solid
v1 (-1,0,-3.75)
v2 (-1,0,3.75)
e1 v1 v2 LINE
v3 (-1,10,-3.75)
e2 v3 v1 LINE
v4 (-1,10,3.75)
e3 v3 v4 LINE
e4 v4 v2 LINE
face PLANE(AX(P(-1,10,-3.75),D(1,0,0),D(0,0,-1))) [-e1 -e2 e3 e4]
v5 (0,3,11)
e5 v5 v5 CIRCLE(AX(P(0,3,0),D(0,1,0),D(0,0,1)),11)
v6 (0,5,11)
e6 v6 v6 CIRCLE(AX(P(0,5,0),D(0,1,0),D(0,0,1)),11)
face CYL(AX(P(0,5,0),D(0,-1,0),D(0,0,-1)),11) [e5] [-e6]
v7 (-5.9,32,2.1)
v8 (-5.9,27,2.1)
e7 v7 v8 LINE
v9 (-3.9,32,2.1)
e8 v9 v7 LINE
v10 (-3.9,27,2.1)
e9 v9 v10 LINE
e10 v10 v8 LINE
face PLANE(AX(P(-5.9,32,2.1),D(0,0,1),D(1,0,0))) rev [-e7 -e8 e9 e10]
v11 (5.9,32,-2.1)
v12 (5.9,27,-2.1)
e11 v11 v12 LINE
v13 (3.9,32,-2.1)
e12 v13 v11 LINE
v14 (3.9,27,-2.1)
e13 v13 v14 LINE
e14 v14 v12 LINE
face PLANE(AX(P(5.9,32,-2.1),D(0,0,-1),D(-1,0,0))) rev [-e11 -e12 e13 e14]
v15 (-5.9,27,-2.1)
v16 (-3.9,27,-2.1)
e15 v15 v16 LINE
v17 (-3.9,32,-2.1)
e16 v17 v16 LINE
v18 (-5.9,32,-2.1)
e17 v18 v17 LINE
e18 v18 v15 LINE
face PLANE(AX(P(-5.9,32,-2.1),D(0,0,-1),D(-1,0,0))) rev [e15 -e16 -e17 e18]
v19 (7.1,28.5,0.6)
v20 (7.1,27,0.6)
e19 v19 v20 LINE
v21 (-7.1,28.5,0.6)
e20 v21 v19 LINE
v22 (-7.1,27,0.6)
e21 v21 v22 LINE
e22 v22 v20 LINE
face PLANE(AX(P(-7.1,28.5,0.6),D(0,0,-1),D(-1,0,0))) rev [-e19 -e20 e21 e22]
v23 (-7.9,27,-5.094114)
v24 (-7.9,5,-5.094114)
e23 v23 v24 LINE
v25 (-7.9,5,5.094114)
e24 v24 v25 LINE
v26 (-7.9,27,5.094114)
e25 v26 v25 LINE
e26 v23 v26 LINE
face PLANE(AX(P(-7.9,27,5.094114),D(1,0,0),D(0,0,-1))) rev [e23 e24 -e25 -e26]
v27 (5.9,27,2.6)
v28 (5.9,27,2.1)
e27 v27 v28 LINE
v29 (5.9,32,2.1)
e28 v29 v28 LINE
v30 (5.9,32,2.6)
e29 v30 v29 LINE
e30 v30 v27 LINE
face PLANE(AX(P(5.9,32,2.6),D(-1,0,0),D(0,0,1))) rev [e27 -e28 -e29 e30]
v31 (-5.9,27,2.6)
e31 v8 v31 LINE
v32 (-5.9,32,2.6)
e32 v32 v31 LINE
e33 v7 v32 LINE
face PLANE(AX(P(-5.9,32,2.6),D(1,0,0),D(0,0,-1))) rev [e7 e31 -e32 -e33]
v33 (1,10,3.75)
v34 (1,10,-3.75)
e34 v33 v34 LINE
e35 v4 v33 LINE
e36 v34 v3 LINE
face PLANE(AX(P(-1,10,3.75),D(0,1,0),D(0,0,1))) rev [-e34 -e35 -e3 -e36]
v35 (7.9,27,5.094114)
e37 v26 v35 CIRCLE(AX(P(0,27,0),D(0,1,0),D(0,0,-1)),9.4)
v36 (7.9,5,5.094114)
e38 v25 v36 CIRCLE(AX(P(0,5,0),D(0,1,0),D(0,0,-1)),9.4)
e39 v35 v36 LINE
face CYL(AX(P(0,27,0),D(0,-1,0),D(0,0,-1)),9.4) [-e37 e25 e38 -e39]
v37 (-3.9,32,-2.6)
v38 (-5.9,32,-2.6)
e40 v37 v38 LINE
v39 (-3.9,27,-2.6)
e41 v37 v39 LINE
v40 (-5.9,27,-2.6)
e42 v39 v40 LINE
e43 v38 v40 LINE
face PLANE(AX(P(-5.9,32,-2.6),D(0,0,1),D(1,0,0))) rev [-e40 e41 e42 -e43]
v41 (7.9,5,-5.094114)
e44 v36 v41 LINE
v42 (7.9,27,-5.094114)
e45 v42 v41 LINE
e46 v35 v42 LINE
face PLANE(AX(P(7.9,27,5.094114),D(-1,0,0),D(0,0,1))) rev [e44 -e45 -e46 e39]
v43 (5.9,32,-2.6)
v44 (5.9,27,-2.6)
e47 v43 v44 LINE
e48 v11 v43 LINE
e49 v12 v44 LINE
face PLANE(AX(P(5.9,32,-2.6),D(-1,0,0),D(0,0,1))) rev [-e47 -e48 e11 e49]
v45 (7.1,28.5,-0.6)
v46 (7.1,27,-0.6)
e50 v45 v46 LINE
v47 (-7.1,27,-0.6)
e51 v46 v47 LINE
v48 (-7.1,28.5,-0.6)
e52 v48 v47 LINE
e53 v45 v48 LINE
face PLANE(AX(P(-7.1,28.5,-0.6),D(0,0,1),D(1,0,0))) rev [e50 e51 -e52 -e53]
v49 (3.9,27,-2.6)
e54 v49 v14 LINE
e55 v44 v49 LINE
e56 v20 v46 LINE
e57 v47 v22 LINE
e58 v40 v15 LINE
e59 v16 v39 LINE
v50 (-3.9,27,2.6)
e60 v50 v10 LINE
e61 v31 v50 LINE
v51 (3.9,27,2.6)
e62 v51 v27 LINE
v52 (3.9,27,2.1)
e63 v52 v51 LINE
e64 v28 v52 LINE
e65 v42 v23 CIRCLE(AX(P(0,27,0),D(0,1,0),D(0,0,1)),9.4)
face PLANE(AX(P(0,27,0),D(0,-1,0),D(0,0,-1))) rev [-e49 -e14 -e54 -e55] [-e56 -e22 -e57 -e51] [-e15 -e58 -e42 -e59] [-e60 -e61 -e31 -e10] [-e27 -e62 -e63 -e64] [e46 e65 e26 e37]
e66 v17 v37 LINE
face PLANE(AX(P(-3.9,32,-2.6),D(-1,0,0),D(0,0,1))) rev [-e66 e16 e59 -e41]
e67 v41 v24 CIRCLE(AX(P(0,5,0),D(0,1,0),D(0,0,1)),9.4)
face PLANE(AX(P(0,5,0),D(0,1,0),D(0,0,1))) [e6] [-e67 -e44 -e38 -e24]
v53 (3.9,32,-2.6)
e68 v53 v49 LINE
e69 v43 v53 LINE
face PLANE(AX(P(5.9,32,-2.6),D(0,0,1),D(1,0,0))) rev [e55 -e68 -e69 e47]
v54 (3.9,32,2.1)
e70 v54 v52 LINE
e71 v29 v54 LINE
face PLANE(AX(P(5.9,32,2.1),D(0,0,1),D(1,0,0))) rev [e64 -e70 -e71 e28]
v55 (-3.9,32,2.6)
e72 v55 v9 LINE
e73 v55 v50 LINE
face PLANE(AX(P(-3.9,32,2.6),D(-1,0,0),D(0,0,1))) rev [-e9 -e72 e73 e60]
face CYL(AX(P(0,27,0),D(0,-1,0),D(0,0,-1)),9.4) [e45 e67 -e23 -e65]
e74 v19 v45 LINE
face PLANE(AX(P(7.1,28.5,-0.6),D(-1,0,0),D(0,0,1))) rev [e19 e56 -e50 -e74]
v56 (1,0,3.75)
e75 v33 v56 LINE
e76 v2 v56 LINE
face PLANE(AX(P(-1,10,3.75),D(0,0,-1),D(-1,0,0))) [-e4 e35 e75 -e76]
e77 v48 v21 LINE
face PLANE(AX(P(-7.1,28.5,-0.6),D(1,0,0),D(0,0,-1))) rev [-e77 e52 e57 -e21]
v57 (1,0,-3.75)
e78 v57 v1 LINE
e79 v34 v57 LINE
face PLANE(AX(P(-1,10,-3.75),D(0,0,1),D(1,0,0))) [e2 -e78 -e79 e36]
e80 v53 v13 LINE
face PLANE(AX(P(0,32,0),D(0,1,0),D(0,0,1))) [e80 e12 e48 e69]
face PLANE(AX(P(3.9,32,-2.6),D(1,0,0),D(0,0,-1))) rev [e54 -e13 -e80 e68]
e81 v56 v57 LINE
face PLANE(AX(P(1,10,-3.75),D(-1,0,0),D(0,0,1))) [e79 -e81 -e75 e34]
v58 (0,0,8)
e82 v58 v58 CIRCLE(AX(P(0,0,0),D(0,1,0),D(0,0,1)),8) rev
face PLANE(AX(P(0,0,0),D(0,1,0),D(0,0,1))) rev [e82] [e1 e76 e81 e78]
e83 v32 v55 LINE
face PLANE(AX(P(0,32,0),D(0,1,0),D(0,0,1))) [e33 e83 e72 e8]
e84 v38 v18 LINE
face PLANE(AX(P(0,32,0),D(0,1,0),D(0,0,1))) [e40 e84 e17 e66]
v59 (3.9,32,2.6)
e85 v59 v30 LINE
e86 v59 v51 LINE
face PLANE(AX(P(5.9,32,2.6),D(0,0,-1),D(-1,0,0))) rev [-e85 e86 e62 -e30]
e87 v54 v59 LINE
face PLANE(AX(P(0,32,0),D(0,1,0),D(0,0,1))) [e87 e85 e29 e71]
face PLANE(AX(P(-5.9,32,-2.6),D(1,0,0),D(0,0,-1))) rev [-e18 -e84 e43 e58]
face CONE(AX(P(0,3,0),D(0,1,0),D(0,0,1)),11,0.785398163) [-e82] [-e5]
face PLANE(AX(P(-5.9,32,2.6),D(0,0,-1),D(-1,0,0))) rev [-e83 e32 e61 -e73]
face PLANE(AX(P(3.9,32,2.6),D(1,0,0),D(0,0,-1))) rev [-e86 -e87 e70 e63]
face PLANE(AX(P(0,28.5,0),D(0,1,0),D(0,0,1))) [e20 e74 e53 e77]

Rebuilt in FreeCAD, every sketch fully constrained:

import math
import FreeCAD as App
import Part
import Sketcher
from FreeCAD import Vector


def edges_at(feature, points):
    """Names of the edges that pass closest to the given points."""
    edges = feature.Shape.Edges
    near = lambda p: min(range(len(edges)), key=lambda i: edges[i].distToShape(Part.Vertex(*p))[0])
    return sorted({f"Edge{near(p) + 1}" for p in points})

doc = App.newDocument("Part")
body = doc.addObject("PartDesign::Body", "Body")

# Sketch on XZ plane
sketch1 = doc.addObject("Sketcher::SketchObject", "Sketch")
body.addObject(sketch1)
sketch1.AttachmentSupport = (doc.XZ_Plane, [""])
sketch1.MapMode = "FlatFace"
sketch1.addGeometry(Part.Circle(Vector(0, 0, 0), Vector(0, 0, 1), 11), False)
sketch1.addConstraint([
    Sketcher.Constraint("Coincident", 0, 3, -1, 1),
    Sketcher.Constraint("Diameter", 0, 22.0),
])
pad1 = doc.addObject("PartDesign::Pad", "Pad")
body.addObject(pad1)
pad1.Profile = sketch1
pad1.Length = 5
pad1.Reversed = True
doc.recompute()

chamfer = doc.addObject("PartDesign::Chamfer", "Chamfer")
body.addObject(chamfer)
chamfer.Base = (pad1, edges_at(pad1, [(0, 0, -11)]))
chamfer.Size = 3

# Sketch on XZ plane
sketch2 = doc.addObject("Sketcher::SketchObject", "Sketch001")
body.addObject(sketch2)
sketch2.AttachmentSupport = (doc.XZ_Plane, [""])
sketch2.MapMode = "FlatFace"
sketch2.AttachmentOffset = App.Placement(Vector(0, 0, -5), App.Rotation())
sketch2.addGeometry([
    Part.LineSegment(Vector(8, 5, 0), Vector(8, -5, 0)),
    Part.ArcOfCircle(Part.Circle(Vector(0, 0, 0), Vector(0, 0, 1), 9), math.radians(-147), math.radians(-33)),
    Part.LineSegment(Vector(-8, -5, 0), Vector(-8, 5, 0)),
    Part.ArcOfCircle(Part.Circle(Vector(0, 0, 0), Vector(0, 0, 1), 9), math.radians(33), math.radians(147)),
], False)
sketch2.addConstraint([
    Sketcher.Constraint("Coincident", 0, 2, 1, 2),
    Sketcher.Constraint("Coincident", 1, 1, 2, 1),
    Sketcher.Constraint("Coincident", 2, 2, 3, 2),
    Sketcher.Constraint("Coincident", 3, 1, 0, 1),
    Sketcher.Constraint("Vertical", 0),
    Sketcher.Constraint("Vertical", 2),
    Sketcher.Constraint("Coincident", 1, 3, -1, 1),
    Sketcher.Constraint("Coincident", 3, 3, -1, 1),
    Sketcher.Constraint("Equal", 1, 3),
    Sketcher.Constraint("Horizontal", 0, 2, 1, 1),
    Sketcher.Constraint("Radius", 1, 9.4),
    Sketcher.Constraint("DistanceX", -1, 1, 0, 2, 7.9),
])
pad2 = doc.addObject("PartDesign::Pad", "Pad001")
body.addObject(pad2)
pad2.Profile = sketch2
pad2.Length = 22
pad2.Reversed = True

# Sketch on XZ plane
sketch3 = doc.addObject("Sketcher::SketchObject", "Sketch002")
body.addObject(sketch3)
sketch3.AttachmentSupport = (doc.XZ_Plane, [""])
sketch3.MapMode = "FlatFace"
sketch3.addGeometry([
    Part.LineSegment(Vector(1, 3.8, 0), Vector(1, -3.8, 0)),
    Part.LineSegment(Vector(1, -3.8, 0), Vector(-1, -3.8, 0)),
    Part.LineSegment(Vector(-1, -3.8, 0), Vector(-1, 3.8, 0)),
    Part.LineSegment(Vector(-1, 3.8, 0), Vector(1, 3.8, 0)),
], False)
sketch3.addConstraint([
    Sketcher.Constraint("Coincident", 0, 2, 1, 1),
    Sketcher.Constraint("Coincident", 1, 2, 2, 1),
    Sketcher.Constraint("Coincident", 2, 2, 3, 1),
    Sketcher.Constraint("Coincident", 3, 2, 0, 1),
    Sketcher.Constraint("Vertical", 0),
    Sketcher.Constraint("Horizontal", 1),
    Sketcher.Constraint("Vertical", 2),
    Sketcher.Constraint("Horizontal", 3),
    Sketcher.Constraint("Symmetric", 0, 2, 2, 2, -1, 1),
    Sketcher.Constraint("DistanceX", 1, 2, 1, 1, 2.0),
    Sketcher.Constraint("DistanceY", 0, 2, 0, 1, 7.5),
])
pocket1 = doc.addObject("PartDesign::Pocket", "Pocket")
body.addObject(pocket1)
pocket1.Profile = sketch3
pocket1.Length = 10

# Sketch on XZ plane
sketch4 = doc.addObject("Sketcher::SketchObject", "Sketch003")
body.addObject(sketch4)
sketch4.AttachmentSupport = (doc.XZ_Plane, [""])
sketch4.MapMode = "FlatFace"
sketch4.AttachmentOffset = App.Placement(Vector(0, 0, -27), App.Rotation())
sketch4.addGeometry([
    Part.LineSegment(Vector(3.9, -2.6, 0), Vector(3.9, -2.1, 0)),  # 0
    Part.LineSegment(Vector(3.9, -2.1, 0), Vector(5.9, -2.1, 0)),  # 1
    Part.LineSegment(Vector(5.9, -2.1, 0), Vector(5.9, -2.6, 0)),  # 2
    Part.LineSegment(Vector(5.9, -2.6, 0), Vector(3.9, -2.6, 0)),  # 3
    Part.LineSegment(Vector(-5.9, -2.6, 0), Vector(-5.9, -2.1, 0)),  # 4
    Part.LineSegment(Vector(-5.9, -2.1, 0), Vector(-3.9, -2.1, 0)),  # 5
    Part.LineSegment(Vector(-3.9, -2.1, 0), Vector(-3.9, -2.6, 0)),  # 6
    Part.LineSegment(Vector(-3.9, -2.6, 0), Vector(-5.9, -2.6, 0)),  # 7
    Part.LineSegment(Vector(3.9, 2.1, 0), Vector(3.9, 2.6, 0)),  # 8
    Part.LineSegment(Vector(3.9, 2.6, 0), Vector(5.9, 2.6, 0)),  # 9
    Part.LineSegment(Vector(5.9, 2.6, 0), Vector(5.9, 2.1, 0)),  # 10
    Part.LineSegment(Vector(5.9, 2.1, 0), Vector(3.9, 2.1, 0)),  # 11
    Part.LineSegment(Vector(-5.9, 2.1, 0), Vector(-5.9, 2.6, 0)),  # 12
    Part.LineSegment(Vector(-5.9, 2.6, 0), Vector(-3.9, 2.6, 0)),  # 13
    Part.LineSegment(Vector(-3.9, 2.6, 0), Vector(-3.9, 2.1, 0)),  # 14
    Part.LineSegment(Vector(-3.9, 2.1, 0), Vector(-5.9, 2.1, 0)),  # 15
], False)
sketch4.addConstraint([
    Sketcher.Constraint("Coincident", 0, 2, 1, 1),
    Sketcher.Constraint("Coincident", 1, 2, 2, 1),
    Sketcher.Constraint("Coincident", 2, 2, 3, 1),
    Sketcher.Constraint("Coincident", 3, 2, 0, 1),
    Sketcher.Constraint("Coincident", 4, 2, 5, 1),
    Sketcher.Constraint("Coincident", 5, 2, 6, 1),
    Sketcher.Constraint("Coincident", 6, 2, 7, 1),
    Sketcher.Constraint("Coincident", 7, 2, 4, 1),
    Sketcher.Constraint("Coincident", 8, 2, 9, 1),
    Sketcher.Constraint("Coincident", 9, 2, 10, 1),
    Sketcher.Constraint("Coincident", 10, 2, 11, 1),
    Sketcher.Constraint("Coincident", 11, 2, 8, 1),
    Sketcher.Constraint("Coincident", 12, 2, 13, 1),
    Sketcher.Constraint("Coincident", 13, 2, 14, 1),
    Sketcher.Constraint("Coincident", 14, 2, 15, 1),
    Sketcher.Constraint("Coincident", 15, 2, 12, 1),
    Sketcher.Constraint("Vertical", 0),
    Sketcher.Constraint("Horizontal", 1),
    Sketcher.Constraint("Vertical", 2),
    Sketcher.Constraint("Horizontal", 3),
    Sketcher.Constraint("Vertical", 4),
    Sketcher.Constraint("Horizontal", 5),
    Sketcher.Constraint("Vertical", 6),
    Sketcher.Constraint("Horizontal", 7),
    Sketcher.Constraint("Vertical", 8),
    Sketcher.Constraint("Horizontal", 9),
    Sketcher.Constraint("Vertical", 10),
    Sketcher.Constraint("Horizontal", 11),
    Sketcher.Constraint("Vertical", 12),
    Sketcher.Constraint("Horizontal", 13),
    Sketcher.Constraint("Vertical", 14),
    Sketcher.Constraint("Horizontal", 15),
    Sketcher.Constraint("Symmetric", 6, 2, 8, 2, -1, 1),
    Sketcher.Constraint("Symmetric", 4, 2, 10, 2, -1, 1),
    Sketcher.Constraint("Symmetric", 2, 2, 12, 2, -1, 1),
    Sketcher.Constraint("Symmetric", 0, 2, 14, 2, -1, 1),
    Sketcher.Constraint("Symmetric", 1, 2, 4, 2, -2),
    Sketcher.Constraint("Symmetric", 3, 2, 6, 2, -2),
    Sketcher.Constraint("DistanceX", 1, 1, 1, 2, 2.0),
    Sketcher.Constraint("DistanceY", 0, 1, 0, 2, 0.5),
    Sketcher.Constraint("DistanceX", -1, 1, 0, 2, 3.9),
    Sketcher.Constraint("DistanceY", 0, 2, -1, 1, 2.1),
])
pad3 = doc.addObject("PartDesign::Pad", "Pad002")
body.addObject(pad3)
pad3.Profile = sketch4
pad3.Length = 5
pad3.Reversed = True

# Sketch on XZ plane
sketch5 = doc.addObject("Sketcher::SketchObject", "Sketch004")
body.addObject(sketch5)
sketch5.AttachmentSupport = (doc.XZ_Plane, [""])
sketch5.MapMode = "FlatFace"
sketch5.AttachmentOffset = App.Placement(Vector(0, 0, -27), App.Rotation())
sketch5.addGeometry([
    Part.LineSegment(Vector(-7.1, -0.6, 0), Vector(-7.1, 0.6, 0)),
    Part.LineSegment(Vector(-7.1, 0.6, 0), Vector(7.1, 0.6, 0)),
    Part.LineSegment(Vector(7.1, 0.6, 0), Vector(7.1, -0.6, 0)),
    Part.LineSegment(Vector(7.1, -0.6, 0), Vector(-7.1, -0.6, 0)),
], False)
sketch5.addConstraint([
    Sketcher.Constraint("Coincident", 0, 2, 1, 1),
    Sketcher.Constraint("Coincident", 1, 2, 2, 1),
    Sketcher.Constraint("Coincident", 2, 2, 3, 1),
    Sketcher.Constraint("Coincident", 3, 2, 0, 1),
    Sketcher.Constraint("Vertical", 0),
    Sketcher.Constraint("Horizontal", 1),
    Sketcher.Constraint("Vertical", 2),
    Sketcher.Constraint("Horizontal", 3),
    Sketcher.Constraint("Symmetric", 0, 2, 2, 2, -1, 1),
    Sketcher.Constraint("DistanceX", 1, 1, 1, 2, 14.2),
    Sketcher.Constraint("DistanceY", 0, 1, 0, 2, 1.2),
])
pad4 = doc.addObject("PartDesign::Pad", "Pad003")
body.addObject(pad4)
pad4.Profile = sketch5
pad4.Length = 1.5
pad4.Reversed = True

doc.recompute()
